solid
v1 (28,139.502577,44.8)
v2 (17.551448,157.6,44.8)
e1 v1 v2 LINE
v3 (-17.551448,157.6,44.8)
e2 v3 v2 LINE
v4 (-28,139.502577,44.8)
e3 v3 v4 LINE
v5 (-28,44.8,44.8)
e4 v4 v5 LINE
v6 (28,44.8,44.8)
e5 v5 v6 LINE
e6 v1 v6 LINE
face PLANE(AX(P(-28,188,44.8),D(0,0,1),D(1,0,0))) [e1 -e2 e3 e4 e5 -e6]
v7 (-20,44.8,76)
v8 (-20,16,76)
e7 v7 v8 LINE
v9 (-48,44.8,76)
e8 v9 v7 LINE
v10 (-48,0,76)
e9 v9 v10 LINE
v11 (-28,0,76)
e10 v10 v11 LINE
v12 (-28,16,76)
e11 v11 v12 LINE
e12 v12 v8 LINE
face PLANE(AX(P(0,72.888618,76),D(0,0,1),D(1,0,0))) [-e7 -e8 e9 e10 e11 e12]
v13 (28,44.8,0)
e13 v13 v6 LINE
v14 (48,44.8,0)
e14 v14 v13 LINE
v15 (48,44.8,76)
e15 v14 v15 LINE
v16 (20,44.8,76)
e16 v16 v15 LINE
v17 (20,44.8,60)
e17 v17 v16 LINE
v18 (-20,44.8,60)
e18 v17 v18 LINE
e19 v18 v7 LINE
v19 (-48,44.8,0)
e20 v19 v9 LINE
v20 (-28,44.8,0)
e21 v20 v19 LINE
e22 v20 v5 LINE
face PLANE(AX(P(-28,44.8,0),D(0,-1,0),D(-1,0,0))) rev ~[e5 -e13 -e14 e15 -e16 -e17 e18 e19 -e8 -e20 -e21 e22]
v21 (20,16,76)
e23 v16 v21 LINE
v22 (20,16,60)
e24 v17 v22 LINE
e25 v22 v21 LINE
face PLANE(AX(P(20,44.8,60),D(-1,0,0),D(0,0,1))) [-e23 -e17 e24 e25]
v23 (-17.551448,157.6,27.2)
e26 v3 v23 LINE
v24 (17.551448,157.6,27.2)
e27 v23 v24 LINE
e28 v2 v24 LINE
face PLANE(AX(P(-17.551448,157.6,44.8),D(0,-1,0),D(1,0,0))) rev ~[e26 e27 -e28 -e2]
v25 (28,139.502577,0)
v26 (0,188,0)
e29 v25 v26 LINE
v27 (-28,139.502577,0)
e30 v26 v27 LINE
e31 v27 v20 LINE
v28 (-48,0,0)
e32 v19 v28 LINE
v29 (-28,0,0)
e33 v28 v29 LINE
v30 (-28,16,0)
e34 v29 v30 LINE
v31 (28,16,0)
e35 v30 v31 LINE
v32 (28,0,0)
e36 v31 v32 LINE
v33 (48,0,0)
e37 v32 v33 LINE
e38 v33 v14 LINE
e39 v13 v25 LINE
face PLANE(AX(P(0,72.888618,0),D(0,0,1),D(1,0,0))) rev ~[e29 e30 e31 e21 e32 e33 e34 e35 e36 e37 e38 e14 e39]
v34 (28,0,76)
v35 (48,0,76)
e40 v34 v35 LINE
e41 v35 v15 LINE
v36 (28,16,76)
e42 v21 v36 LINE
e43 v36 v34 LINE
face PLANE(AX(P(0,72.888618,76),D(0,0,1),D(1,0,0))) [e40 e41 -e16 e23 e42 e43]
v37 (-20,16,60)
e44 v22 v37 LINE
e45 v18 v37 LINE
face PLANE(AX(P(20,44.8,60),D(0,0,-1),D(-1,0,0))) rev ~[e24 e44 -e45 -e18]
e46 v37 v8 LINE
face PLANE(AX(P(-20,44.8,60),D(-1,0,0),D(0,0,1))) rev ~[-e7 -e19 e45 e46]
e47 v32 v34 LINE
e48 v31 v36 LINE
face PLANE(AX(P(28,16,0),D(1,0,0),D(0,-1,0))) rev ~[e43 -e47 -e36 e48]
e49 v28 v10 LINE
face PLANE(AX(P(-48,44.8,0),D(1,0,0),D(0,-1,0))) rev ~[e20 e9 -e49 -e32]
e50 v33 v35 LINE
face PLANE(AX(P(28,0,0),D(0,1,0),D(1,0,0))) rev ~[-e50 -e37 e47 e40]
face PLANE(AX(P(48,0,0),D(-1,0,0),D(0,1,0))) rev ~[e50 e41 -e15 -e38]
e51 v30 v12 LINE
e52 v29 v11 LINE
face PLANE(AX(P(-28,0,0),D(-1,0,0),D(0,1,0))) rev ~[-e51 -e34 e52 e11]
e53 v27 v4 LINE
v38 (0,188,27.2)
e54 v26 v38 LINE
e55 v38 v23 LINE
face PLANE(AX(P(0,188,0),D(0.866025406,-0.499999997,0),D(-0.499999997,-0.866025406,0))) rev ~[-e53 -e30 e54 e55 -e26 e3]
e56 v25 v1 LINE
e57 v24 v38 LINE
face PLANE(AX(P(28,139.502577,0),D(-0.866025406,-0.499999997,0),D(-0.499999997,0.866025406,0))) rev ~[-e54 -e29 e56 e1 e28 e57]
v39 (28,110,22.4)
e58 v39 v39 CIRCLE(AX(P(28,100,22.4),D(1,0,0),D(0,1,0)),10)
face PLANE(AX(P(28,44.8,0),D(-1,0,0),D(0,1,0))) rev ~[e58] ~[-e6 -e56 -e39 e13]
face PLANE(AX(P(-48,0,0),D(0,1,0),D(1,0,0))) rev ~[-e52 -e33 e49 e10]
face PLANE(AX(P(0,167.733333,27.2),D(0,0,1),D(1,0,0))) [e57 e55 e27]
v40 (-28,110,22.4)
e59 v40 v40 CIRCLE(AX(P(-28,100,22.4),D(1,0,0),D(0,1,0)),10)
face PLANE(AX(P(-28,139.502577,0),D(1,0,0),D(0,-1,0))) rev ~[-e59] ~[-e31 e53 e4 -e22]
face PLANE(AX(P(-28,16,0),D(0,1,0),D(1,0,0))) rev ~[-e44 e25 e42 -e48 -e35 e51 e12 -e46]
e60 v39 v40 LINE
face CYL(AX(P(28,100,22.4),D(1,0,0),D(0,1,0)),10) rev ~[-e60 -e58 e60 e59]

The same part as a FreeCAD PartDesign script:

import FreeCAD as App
import Part
import Sketcher
Q = App.Units.Quantity


def add_polygon(sketch, points):
    """Adds a closed chain of lines whose ends are joined by coincident constraints."""
    first, n = sketch.GeometryCount, len(points)
    for a, b in zip(points, points[1:] + points[:1]):
        sketch.addGeometry(Part.LineSegment(App.Vector(*a, 0), App.Vector(*b, 0)), False)
    for i in range(n):
        sketch.addConstraint(Sketcher.Constraint("Coincident", first + i, 2, first + (i + 1) % n, 1))

doc = App.newDocument("Part")
body = doc.addObject("PartDesign::Body", "Body")

sketch1 = body.newObject("Sketcher::SketchObject", "Sketch")
sketch1.AttachmentSupport = (doc.getObject("XY_Plane"), [""])
sketch1.MapMode = "FlatFace"
add_polygon(sketch1, [(-48, 45), (-48, 0), (-28, 0), (-28, 16), (28, 16), (28, 0), (48, 0), (48, 45), (28, 45), (28, 140), (0, 188), (-28, 140), (-28, 45)])
sketch1.addConstraint([
    Sketcher.Constraint("Vertical", 0),
    Sketcher.Constraint("Horizontal", 1),
    Sketcher.Constraint("Vertical", 2),
    Sketcher.Constraint("Horizontal", 3),
    Sketcher.Constraint("Vertical", 4),
    Sketcher.Constraint("Horizontal", 5),
    Sketcher.Constraint("Vertical", 6),
    Sketcher.Constraint("Horizontal", 7),
    Sketcher.Constraint("Vertical", 8),
    Sketcher.Constraint("Vertical", 11),
    Sketcher.Constraint("Horizontal", 12),
    Sketcher.Constraint("Symmetric", 1, 2, 4, 2, -1, 1),
    Sketcher.Constraint("Symmetric", 0, 2, 5, 2, -2),
    Sketcher.Constraint("Symmetric", 8, 2, 10, 2, -2),
    Sketcher.Constraint("PointOnObject", 9, 2, -2),
    Sketcher.Constraint("Horizontal", 7, 2, 11, 2),
    Sketcher.Constraint("Vertical", 4, 2, 7, 2),
    Sketcher.Constraint("DistanceX", 1, 1, 1, 2, 20.0),
    Sketcher.Constraint("DistanceX", 3, 1, 3, 2, 56.0),
    Sketcher.Constraint("DistanceY", 2, 1, 2, 2, 16.0),
    Sketcher.Constraint("Angle", 9, Q("120 deg")),
    Sketcher.Constraint("DistanceY", 0, 2, 0, 1, 44.8),
    Sketcher.Constraint("DistanceY", -1, 1, 9, 2, 188.0),
])
pad1 = body.newObject("PartDesign::Pad", "Pad")
pad1.Profile = sketch1
pad1.Length = 76

sketch2 = body.newObject("Sketcher::SketchObject", "Sketch001")
sketch2.AttachmentSupport = (doc.getObject("XZ_Plane"), [""])
sketch2.MapMode = "FlatFace"
sketch2.AttachmentOffset = App.Placement(App.Vector(0, 0, -188), App.Rotation())
add_polygon(sketch2, [(48, 76), (-48, 76), (-48, 0), (-28, 0), (-28, 45), (28, 45), (28, 0), (48, 0)])
sketch2.addConstraint([
    Sketcher.Constraint("Horizontal", 0),
    Sketcher.Constraint("Vertical", 1),
    Sketcher.Constraint("Horizontal", 2),
    Sketcher.Constraint("Vertical", 3),
    Sketcher.Constraint("Horizontal", 4),
    Sketcher.Constraint("Vertical", 5),
    Sketcher.Constraint("Horizontal", 6),
    Sketcher.Constraint("Vertical", 7),
    Sketcher.Constraint("Symmetric", 2, 2, 5, 2, -1, 1),
    Sketcher.Constraint("Symmetric", 1, 2, 6, 2, -2),
    Sketcher.Constraint("DistanceX", 0, 2, 0, 1, 96.0),
    Sketcher.Constraint("DistanceX", 2, 1, 2, 2, 20.0),
    Sketcher.Constraint("DistanceY", 1, 2, 1, 1, 76.0),
    Sketcher.Constraint("DistanceY", 3, 1, 3, 2, 44.8),
])
pocket1 = body.newObject("PartDesign::Pocket", "Pocket")
pocket1.Profile = sketch2
pocket1.Length = 143.2
pocket1.Reversed = True

sketch3 = body.newObject("Sketcher::SketchObject", "Sketch002")
sketch3.AttachmentSupport = (doc.getObject("XZ_Plane"), [""])
sketch3.MapMode = "FlatFace"
sketch3.AttachmentOffset = App.Placement(App.Vector(0, 0, -44.8), App.Rotation())
add_polygon(sketch3, [(20, 76), (20, 60), (-20, 60), (-20, 76)])
sketch3.addConstraint([
    Sketcher.Constraint("Vertical", 0),
    Sketcher.Constraint("Horizontal", 1),
    Sketcher.Constraint("Vertical", 2),
    Sketcher.Constraint("Horizontal", 3),
    Sketcher.Constraint("DistanceX", 1, 2, 1, 1, 40.0),
    Sketcher.Constraint("DistanceY", 0, 2, 0, 1, 16.0),
    Sketcher.Constraint("DistanceX", -1, 1, 0, 2, 20.0),
    Sketcher.Constraint("DistanceY", -1, 1, 0, 2, 60.0),
])
pocket2 = body.newObject("PartDesign::Pocket", "Pocket001")
pocket2.Profile = sketch3
pocket2.Type = "ThroughAll"
pocket2.Reversed = True

sketch4 = body.newObject("Sketcher::SketchObject", "Sketch003")
sketch4.AttachmentSupport = (doc.getObject("XY_Plane"), [""])
sketch4.MapMode = "FlatFace"
sketch4.AttachmentOffset = App.Placement(App.Vector(0, 0, 44.8), App.Rotation())
add_polygon(sketch4, [(0, 188), (-18, 158), (18, 158)])
sketch4.addConstraint([
    Sketcher.Constraint("Horizontal", 1),
    Sketcher.Constraint("PointOnObject", 2, 2, -2),
    Sketcher.Constraint("Equal", 0, 2),
    Sketcher.Constraint("Angle", 0, Q("-120 deg")),
    Sketcher.Constraint("DistanceY", -1, 1, 2, 2, 188.0),
    Sketcher.Constraint("DistanceY", -1, 1, 0, 2, 157.6),
])
pocket3 = body.newObject("PartDesign::Pocket", "Pocket002")
pocket3.Profile = sketch4
pocket3.Length = 17.6

sketch5 = body.newObject("Sketcher::SketchObject", "Sketch004")
sketch5.AttachmentSupport = (doc.getObject("YZ_Plane"), [""])
sketch5.MapMode = "FlatFace"
sketch5.AttachmentOffset = App.Placement(App.Vector(0, 0, 28), App.Rotation())
sketch5.addGeometry(Part.Circle(App.Vector(100, 22, 0), App.Vector(0, 0, 1), 10), False)
sketch5.addConstraint([
    Sketcher.Constraint("Diameter", 0, 20.0),
    Sketcher.Constraint("DistanceX", -1, 1, 0, 3, 100.0),
    Sketcher.Constraint("DistanceY", -1, 1, 0, 3, 22.4),
])
pocket4 = body.newObject("PartDesign::Pocket", "Pocket003")
pocket4.Profile = sketch5
pocket4.Type = "ThroughAll"

doc.recompute()
